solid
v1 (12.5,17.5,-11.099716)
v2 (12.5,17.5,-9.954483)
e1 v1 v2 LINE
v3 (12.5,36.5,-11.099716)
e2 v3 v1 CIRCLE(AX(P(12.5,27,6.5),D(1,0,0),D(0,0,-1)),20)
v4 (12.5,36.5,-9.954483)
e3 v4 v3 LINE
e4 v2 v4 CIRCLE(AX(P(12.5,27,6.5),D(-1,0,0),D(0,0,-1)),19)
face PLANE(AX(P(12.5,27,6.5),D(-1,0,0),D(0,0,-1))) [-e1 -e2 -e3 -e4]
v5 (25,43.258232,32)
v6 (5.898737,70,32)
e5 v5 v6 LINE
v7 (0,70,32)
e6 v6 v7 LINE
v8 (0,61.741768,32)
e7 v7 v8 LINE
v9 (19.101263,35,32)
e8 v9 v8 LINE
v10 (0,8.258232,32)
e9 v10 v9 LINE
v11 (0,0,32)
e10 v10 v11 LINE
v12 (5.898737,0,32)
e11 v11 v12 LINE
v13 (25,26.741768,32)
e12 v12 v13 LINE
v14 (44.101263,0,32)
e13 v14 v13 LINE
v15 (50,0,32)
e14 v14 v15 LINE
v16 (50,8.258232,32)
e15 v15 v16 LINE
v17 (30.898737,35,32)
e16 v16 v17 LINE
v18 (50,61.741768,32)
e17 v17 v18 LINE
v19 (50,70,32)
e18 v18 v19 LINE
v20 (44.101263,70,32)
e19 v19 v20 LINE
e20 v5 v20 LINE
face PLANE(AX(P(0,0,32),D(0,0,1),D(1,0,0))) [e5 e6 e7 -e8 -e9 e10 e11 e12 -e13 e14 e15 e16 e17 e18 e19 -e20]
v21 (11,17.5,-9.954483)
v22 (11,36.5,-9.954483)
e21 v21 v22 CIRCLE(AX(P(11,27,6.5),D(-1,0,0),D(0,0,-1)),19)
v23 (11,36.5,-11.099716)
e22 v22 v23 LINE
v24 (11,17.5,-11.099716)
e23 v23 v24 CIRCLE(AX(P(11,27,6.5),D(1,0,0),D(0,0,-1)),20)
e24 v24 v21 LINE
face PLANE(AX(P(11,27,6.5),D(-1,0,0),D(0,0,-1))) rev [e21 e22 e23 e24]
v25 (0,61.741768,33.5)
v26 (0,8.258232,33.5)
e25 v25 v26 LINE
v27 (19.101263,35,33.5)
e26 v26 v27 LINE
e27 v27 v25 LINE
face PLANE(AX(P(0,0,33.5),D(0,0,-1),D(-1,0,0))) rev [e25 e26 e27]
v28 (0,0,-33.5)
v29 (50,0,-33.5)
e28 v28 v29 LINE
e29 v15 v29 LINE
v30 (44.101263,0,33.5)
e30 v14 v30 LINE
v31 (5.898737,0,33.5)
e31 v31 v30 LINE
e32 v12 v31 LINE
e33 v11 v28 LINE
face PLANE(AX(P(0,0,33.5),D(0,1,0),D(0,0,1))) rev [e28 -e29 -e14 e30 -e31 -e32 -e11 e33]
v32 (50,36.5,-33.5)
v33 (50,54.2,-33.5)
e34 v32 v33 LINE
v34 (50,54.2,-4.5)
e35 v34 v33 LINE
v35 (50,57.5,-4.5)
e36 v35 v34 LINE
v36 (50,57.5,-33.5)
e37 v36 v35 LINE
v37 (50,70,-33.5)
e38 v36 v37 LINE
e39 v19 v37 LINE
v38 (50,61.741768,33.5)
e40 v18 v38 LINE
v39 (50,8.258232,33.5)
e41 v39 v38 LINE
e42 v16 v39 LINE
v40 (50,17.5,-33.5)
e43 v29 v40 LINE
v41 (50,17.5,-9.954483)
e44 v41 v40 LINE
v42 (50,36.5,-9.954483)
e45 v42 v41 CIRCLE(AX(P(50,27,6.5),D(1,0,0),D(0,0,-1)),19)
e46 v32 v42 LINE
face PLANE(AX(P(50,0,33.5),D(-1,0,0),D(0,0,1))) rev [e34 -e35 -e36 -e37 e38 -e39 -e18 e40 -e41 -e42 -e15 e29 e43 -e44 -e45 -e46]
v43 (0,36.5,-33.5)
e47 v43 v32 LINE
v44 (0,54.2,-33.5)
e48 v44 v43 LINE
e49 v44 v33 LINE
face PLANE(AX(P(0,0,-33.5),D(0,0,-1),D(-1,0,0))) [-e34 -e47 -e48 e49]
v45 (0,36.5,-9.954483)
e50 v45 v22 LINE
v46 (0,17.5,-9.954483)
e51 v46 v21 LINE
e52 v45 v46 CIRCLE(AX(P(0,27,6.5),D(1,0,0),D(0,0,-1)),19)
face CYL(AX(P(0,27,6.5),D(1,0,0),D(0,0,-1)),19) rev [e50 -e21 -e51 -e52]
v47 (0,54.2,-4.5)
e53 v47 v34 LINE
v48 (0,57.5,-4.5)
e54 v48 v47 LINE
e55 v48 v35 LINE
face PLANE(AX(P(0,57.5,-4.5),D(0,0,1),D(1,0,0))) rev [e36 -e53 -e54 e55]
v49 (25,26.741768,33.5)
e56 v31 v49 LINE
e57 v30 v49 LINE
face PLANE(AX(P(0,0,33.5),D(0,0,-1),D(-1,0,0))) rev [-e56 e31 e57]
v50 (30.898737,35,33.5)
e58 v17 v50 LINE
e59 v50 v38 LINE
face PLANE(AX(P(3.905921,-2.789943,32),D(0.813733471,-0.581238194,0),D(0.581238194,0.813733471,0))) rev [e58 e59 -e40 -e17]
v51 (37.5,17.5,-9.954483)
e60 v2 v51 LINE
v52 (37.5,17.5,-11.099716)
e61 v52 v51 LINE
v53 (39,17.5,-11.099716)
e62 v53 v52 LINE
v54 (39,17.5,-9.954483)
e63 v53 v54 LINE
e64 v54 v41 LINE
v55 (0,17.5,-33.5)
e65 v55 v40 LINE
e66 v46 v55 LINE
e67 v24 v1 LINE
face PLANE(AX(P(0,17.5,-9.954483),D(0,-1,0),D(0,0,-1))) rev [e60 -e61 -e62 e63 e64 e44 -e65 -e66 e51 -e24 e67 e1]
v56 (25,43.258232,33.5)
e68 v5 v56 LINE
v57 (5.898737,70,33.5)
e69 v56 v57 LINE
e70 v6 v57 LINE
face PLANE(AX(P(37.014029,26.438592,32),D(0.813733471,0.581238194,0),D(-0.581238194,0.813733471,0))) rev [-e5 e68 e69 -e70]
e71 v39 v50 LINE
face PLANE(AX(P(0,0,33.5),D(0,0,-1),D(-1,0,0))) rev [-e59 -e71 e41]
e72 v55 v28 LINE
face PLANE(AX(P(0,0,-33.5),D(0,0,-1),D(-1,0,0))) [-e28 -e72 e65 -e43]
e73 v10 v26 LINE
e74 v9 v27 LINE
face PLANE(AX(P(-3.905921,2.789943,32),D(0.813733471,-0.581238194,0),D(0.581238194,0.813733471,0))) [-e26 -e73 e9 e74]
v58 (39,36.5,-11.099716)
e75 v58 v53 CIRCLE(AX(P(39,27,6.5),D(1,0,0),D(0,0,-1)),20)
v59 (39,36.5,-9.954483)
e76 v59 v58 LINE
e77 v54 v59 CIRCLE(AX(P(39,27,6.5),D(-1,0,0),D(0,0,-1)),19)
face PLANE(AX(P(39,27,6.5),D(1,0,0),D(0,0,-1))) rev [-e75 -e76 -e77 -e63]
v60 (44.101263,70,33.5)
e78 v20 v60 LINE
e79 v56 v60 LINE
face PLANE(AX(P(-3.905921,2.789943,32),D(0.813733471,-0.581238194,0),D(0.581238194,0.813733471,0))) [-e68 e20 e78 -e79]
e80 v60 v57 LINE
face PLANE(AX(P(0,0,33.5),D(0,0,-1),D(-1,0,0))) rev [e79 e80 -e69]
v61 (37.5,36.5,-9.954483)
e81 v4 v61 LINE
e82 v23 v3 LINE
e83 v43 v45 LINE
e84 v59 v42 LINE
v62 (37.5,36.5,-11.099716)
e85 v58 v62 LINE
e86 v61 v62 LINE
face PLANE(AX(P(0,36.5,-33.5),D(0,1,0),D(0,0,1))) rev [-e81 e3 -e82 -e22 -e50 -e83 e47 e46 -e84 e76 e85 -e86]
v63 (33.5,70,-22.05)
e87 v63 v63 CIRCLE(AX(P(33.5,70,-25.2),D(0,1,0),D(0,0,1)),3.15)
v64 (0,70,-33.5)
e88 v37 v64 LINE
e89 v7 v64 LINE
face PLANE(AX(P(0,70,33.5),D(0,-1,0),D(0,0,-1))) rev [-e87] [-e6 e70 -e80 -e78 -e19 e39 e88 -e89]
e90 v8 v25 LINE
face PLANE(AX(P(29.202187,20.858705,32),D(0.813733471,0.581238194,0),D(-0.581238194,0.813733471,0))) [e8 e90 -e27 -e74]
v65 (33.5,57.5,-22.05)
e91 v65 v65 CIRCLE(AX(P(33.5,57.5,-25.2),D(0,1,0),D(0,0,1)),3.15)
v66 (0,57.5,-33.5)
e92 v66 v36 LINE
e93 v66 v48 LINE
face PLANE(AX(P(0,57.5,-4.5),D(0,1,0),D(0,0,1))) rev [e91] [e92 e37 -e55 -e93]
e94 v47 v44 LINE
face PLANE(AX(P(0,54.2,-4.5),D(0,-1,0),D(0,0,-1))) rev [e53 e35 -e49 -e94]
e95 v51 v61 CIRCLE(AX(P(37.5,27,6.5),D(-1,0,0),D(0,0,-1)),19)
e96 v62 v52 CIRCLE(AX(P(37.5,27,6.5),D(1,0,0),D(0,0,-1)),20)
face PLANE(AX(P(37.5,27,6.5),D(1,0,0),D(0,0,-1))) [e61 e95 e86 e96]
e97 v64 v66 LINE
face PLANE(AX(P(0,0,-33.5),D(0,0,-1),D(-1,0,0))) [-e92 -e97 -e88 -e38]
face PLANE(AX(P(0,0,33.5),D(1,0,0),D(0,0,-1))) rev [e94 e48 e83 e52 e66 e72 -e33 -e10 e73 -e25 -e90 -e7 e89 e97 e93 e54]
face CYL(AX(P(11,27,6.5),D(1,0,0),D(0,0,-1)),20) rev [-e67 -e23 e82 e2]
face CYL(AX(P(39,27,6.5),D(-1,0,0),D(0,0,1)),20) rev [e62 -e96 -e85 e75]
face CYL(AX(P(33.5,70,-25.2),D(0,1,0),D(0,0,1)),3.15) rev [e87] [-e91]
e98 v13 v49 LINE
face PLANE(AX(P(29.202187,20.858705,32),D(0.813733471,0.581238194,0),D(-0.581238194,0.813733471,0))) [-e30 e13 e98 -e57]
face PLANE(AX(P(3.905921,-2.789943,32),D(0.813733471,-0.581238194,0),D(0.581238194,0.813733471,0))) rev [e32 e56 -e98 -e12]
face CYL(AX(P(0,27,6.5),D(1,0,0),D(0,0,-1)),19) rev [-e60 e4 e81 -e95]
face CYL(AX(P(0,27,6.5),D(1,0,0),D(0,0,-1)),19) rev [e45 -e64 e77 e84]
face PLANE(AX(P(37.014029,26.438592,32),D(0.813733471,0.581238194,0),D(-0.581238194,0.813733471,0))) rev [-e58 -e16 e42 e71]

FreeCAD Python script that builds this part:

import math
import FreeCAD as App
import Part
import Sketcher
from FreeCAD import Vector
Q = App.Units.Quantity

doc = App.newDocument("Part")
body = doc.addObject("PartDesign::Body", "Body")

# Sketch on XY plane
sketch1 = body.newObject("Sketcher::SketchObject", "Sketch")
sketch1.AttachmentSupport = (doc.getObject("XY_Plane"), [""])
sketch1.MapMode = "FlatFace"
sketch1.addGeometry([
    Part.LineSegment(Vector(0, 70, 0), Vector(0, 0, 0)),
    Part.LineSegment(Vector(0, 0, 0), Vector(50, 0, 0)),
    Part.LineSegment(Vector(50, 0, 0), Vector(50, 70, 0)),
    Part.LineSegment(Vector(50, 70, 0), Vector(0, 70, 0)),
], False)
sketch1.addConstraint([
    Sketcher.Constraint("Coincident", 0, 2, 1, 1),
    Sketcher.Constraint("Coincident", 1, 2, 2, 1),
    Sketcher.Constraint("Coincident", 2, 2, 3, 1),
    Sketcher.Constraint("Coincident", 3, 2, 0, 1),
    Sketcher.Constraint("Vertical", 0),
    Sketcher.Constraint("Horizontal", 1),
    Sketcher.Constraint("Vertical", 2),
    Sketcher.Constraint("Horizontal", 3),
    Sketcher.Constraint("Coincident", 0, 2, -1, 1),
    Sketcher.Constraint("DistanceX", 1, 1, 1, 2, Q("50 mm")),
    Sketcher.Constraint("DistanceY", 0, 2, 0, 1, Q("70 mm")),
])
pad1 = body.newObject("PartDesign::Pad", "Pad")
pad1.Profile = sketch1
pad1.Length = 67
pad1.Midplane = True

# Sketch on XY plane
sketch2 = body.newObject("Sketcher::SketchObject", "Sketch001")
sketch2.AttachmentSupport = (doc.getObject("XY_Plane"), [""])
sketch2.MapMode = "FlatFace"
sketch2.AttachmentOffset = App.Placement(Vector(0, 0, 33.5), App.Rotation())
sketch2.addGeometry([
    Part.LineSegment(Vector(25, 43, 0), Vector(6, 70, 0)),  # 0
    Part.LineSegment(Vector(6, 70, 0), Vector(0, 70, 0)),  # 1
    Part.LineSegment(Vector(0, 70, 0), Vector(0, 62, 0)),  # 2
    Part.LineSegment(Vector(0, 62, 0), Vector(19, 35, 0)),  # 3
    Part.LineSegment(Vector(19, 35, 0), Vector(0, 8, 0)),  # 4
    Part.LineSegment(Vector(0, 8, 0), Vector(0, 0, 0)),  # 5
    Part.LineSegment(Vector(0, 0, 0), Vector(6, 0, 0)),  # 6
    Part.LineSegment(Vector(6, 0, 0), Vector(25, 27, 0)),  # 7
    Part.LineSegment(Vector(25, 27, 0), Vector(44, 0, 0)),  # 8
    Part.LineSegment(Vector(44, 0, 0), Vector(50, 0, 0)),  # 9
    Part.LineSegment(Vector(50, 0, 0), Vector(50, 8, 0)),  # 10
    Part.LineSegment(Vector(50, 8, 0), Vector(31, 35, 0)),  # 11
    Part.LineSegment(Vector(31, 35, 0), Vector(50, 62, 0)),  # 12
    Part.LineSegment(Vector(50, 62, 0), Vector(50, 70, 0)),  # 13
    Part.LineSegment(Vector(50, 70, 0), Vector(44, 70, 0)),  # 14
    Part.LineSegment(Vector(44, 70, 0), Vector(25, 43, 0)),  # 15
], False)
sketch2.addConstraint([
    Sketcher.Constraint("Coincident", 0, 2, 1, 1),
    Sketcher.Constraint("Coincident", 1, 2, 2, 1),
    Sketcher.Constraint("Coincident", 2, 2, 3, 1),
    Sketcher.Constraint("Coincident", 3, 2, 4, 1),
    Sketcher.Constraint("Coincident", 4, 2, 5, 1),
    Sketcher.Constraint("Coincident", 5, 2, 6, 1),
    Sketcher.Constraint("Coincident", 6, 2, 7, 1),
    Sketcher.Constraint("Coincident", 7, 2, 8, 1),
    Sketcher.Constraint("Coincident", 8, 2, 9, 1),
    Sketcher.Constraint("Coincident", 9, 2, 10, 1),
    Sketcher.Constraint("Coincident", 10, 2, 11, 1),
    Sketcher.Constraint("Coincident", 11, 2, 12, 1),
    Sketcher.Constraint("Coincident", 12, 2, 13, 1),
    Sketcher.Constraint("Coincident", 13, 2, 14, 1),
    Sketcher.Constraint("Coincident", 14, 2, 15, 1),
    Sketcher.Constraint("Coincident", 15, 2, 0, 1),
    Sketcher.Constraint("Horizontal", 1),
    Sketcher.Constraint("Vertical", 2),
    Sketcher.Constraint("Vertical", 5),
    Sketcher.Constraint("Horizontal", 6),
    Sketcher.Constraint("Horizontal", 9),
    Sketcher.Constraint("Vertical", 10),
    Sketcher.Constraint("Vertical", 13),
    Sketcher.Constraint("Horizontal", 14),
    Sketcher.Constraint("Coincident", 5, 2, -1, 1),
    Sketcher.Constraint("PointOnObject", 1, 2, -2),
    Sketcher.Constraint("PointOnObject", 8, 2, -1),
    Sketcher.Constraint("Parallel", 0, 3),
    Sketcher.Constraint("Parallel", 4, 7),
    Sketcher.Constraint("Parallel", 3, 8),
    Sketcher.Constraint("Parallel", 8, 11),
    Sketcher.Constraint("Parallel", 7, 12),
    Sketcher.Constraint("Parallel", 12, 15),
    Sketcher.Constraint("Horizontal", 4, 2, 10, 2),
    Sketcher.Constraint("Horizontal", 3, 2, 11, 2),
    Sketcher.Constraint("Horizontal", 2, 2, 12, 2),
    Sketcher.Constraint("Horizontal", 1, 2, 13, 2),
    Sketcher.Constraint("Vertical", 0, 2, 6, 2),
    Sketcher.Constraint("Vertical", 10, 2, 12, 2),
    Sketcher.Constraint("Vertical", 8, 2, 14, 2),
    Sketcher.Constraint("Equal", 6, 9),
    Sketcher.Constraint("Equal", 2, 5),
    Sketcher.Constraint("Equal", 0, 3),
    Sketcher.Constraint("DistanceY", -1, 1, 0, 2, Q("70 mm")),
    Sketcher.Constraint("DistanceX", -1, 1, 7, 2, Q("25 mm")),
    Sketcher.Constraint("DistanceX", 1, 2, 1, 1, Q("5.898737 mm")),
    Sketcher.Constraint("DistanceY", 2, 2, 2, 1, Q("8.258232 mm")),
])
pocket1 = body.newObject("PartDesign::Pocket", "Pocket")
pocket1.Profile = sketch2
pocket1.Length = 1.5

# Sketch on YZ plane
sketch3 = body.newObject("Sketcher::SketchObject", "Sketch002")
sketch3.AttachmentSupport = (doc.getObject("YZ_Plane"), [""])
sketch3.MapMode = "FlatFace"
sketch3.AttachmentOffset = App.Placement(Vector(0, 0, 50), App.Rotation())
sketch3.addGeometry([
    Part.LineSegment(Vector(57.5, -4.5, 0), Vector(54.2, -4.5, 0)),
    Part.LineSegment(Vector(54.2, -4.5, 0), Vector(54.2, -33.5, 0)),
    Part.LineSegment(Vector(54.2, -33.5, 0), Vector(57.5, -33.5, 0)),
    Part.LineSegment(Vector(57.5, -33.5, 0), Vector(57.5, -4.5, 0)),
], False)
sketch3.addConstraint([
    Sketcher.Constraint("Coincident", 0, 2, 1, 1),
    Sketcher.Constraint("Coincident", 1, 2, 2, 1),
    Sketcher.Constraint("Coincident", 2, 2, 3, 1),
    Sketcher.Constraint("Coincident", 3, 2, 0, 1),
    Sketcher.Constraint("Horizontal", 0),
    Sketcher.Constraint("Vertical", 1),
    Sketcher.Constraint("Horizontal", 2),
    Sketcher.Constraint("Vertical", 3),
    Sketcher.Constraint("DistanceY", 1, 2, 1, 1, Q("29 mm")),
    Sketcher.Constraint("DistanceX", 0, 2, 0, 1, Q("3.3 mm")),
    Sketcher.Constraint("DistanceX", -1, 1, 0, 2, Q("54.2 mm")),
    Sketcher.Constraint("DistanceY", 0, 2, -1, 1, Q("4.5 mm")),
])
pocket2 = body.newObject("PartDesign::Pocket", "Pocket001")
pocket2.Profile = sketch3
pocket2.Type = "ThroughAll"

# Sketch on YZ plane
sketch4 = body.newObject("Sketcher::SketchObject", "Sketch003")
sketch4.AttachmentSupport = (doc.getObject("YZ_Plane"), [""])
sketch4.MapMode = "FlatFace"
sketch4.AttachmentOffset = App.Placement(Vector(0, 0, 50), App.Rotation())
sketch4.addGeometry([
    Part.LineSegment(Vector(36, -34, 0), Vector(36, -10, 0)),
    Part.ArcOfCircle(Part.Circle(Vector(27, 6, 0), Vector(0, 0, 1), 19), math.radians(-60), math.radians(240)),
    Part.LineSegment(Vector(18, -10, 0), Vector(18, -34, 0)),
    Part.LineSegment(Vector(18, -34, 0), Vector(36, -34, 0)),
], False)
sketch4.addConstraint([
    Sketcher.Constraint("Coincident", 0, 2, 1, 1),
    Sketcher.Constraint("Coincident", 1, 2, 2, 1),
    Sketcher.Constraint("Coincident", 2, 2, 3, 1),
    Sketcher.Constraint("Coincident", 3, 2, 0, 1),
    Sketcher.Constraint("Vertical", 0),
    Sketcher.Constraint("Vertical", 2),
    Sketcher.Constraint("Horizontal", 3),
    Sketcher.Constraint("Horizontal", 0, 2, 1, 2),
    Sketcher.Constraint("Radius", 1, Q("19 mm")),
    Sketcher.Constraint("DistanceX", 3, 1, 3, 2, Q("19 mm")),
    Sketcher.Constraint("DistanceX", -1, 1, 1, 3, Q("27 mm")),
    Sketcher.Constraint("DistanceY", 2, 2, 1, 3, Q("40 mm")),
    Sketcher.Constraint("DistanceY", -1, 1, 1, 3, Q("6.5 mm")),
])
pocket3 = body.newObject("PartDesign::Pocket", "Pocket002")
pocket3.Profile = sketch4
pocket3.Type = "ThroughAll"

# Sketch on XZ plane
sketch5 = body.newObject("Sketcher::SketchObject", "Sketch004")
sketch5.AttachmentSupport = (doc.getObject("XZ_Plane"), [""])
sketch5.MapMode = "FlatFace"
sketch5.AttachmentOffset = App.Placement(Vector(0, 0, -70), App.Rotation())
sketch5.addGeometry(Part.Circle(Vector(33.5, -25.2, 0), Vector(0, 0, 1), 3.1), False)
sketch5.addConstraint([
    Sketcher.Constraint("Diameter", 0, Q("6.3 mm")),
    Sketcher.Constraint("DistanceX", -1, 1, 0, 3, Q("33.5 mm")),
    Sketcher.Constraint("DistanceY", 0, 3, -1, 1, Q("25.2 mm")),
])
doc.recompute()
hole = body.newObject("PartDesign::Hole", "Hole")
hole.Profile = sketch5
hole.ThreadType = "None"
hole.Diameter = 6.3
hole.DepthType = "Dimension"
hole.Depth = 12.5
hole.DrillPoint = "Flat"
hole.Reversed = True

# Sketch on YZ plane
sketch6 = body.newObject("Sketcher::SketchObject", "Sketch005")
sketch6.AttachmentSupport = (doc.getObject("YZ_Plane"), [""])
sketch6.MapMode = "FlatFace"
sketch6.AttachmentOffset = App.Placement(Vector(0, 0, 37.5), App.Rotation())
sketch6.addGeometry([
    Part.LineSegment(Vector(36.5, -10, 0), Vector(36.5, -11.1, 0)),
    Part.ArcOfCircle(Part.Circle(Vector(27, 6.5, 0), Vector(0, 0, 1), 20), math.radians(-62), math.radians(242)),
    Part.LineSegment(Vector(17.5, -11.1, 0), Vector(17.5, -10, 0)),
    Part.ArcOfCircle(Part.Circle(Vector(27, 6.5, 0), Vector(0, 0, 1), 19), math.radians(-60), math.radians(240)),
], False)
sketch6.addConstraint([
    Sketcher.Constraint("Coincident", 0, 2, 1, 1),
    Sketcher.Constraint("Coincident", 1, 2, 2, 1),
    Sketcher.Constraint("Coincident", 2, 2, 3, 2),
    Sketcher.Constraint("Coincident", 3, 1, 0, 1),
    Sketcher.Constraint("Vertical", 0),
    Sketcher.Constraint("Vertical", 2),
    Sketcher.Constraint("Coincident", 3, 3, 1, 3),
    Sketcher.Constraint("Horizontal", 0, 2, 1, 2),
    Sketcher.Constraint("Radius", 1, Q("20 mm")),
    Sketcher.Constraint("Radius", 3, Q("19 mm")),
    Sketcher.Constraint("DistanceX", -1, 1, 1, 3, Q("27 mm")),
    Sketcher.Constraint("DistanceX", 1, 2, 0, 2, Q("19 mm")),
    Sketcher.Constraint("DistanceY", -1, 1, 1, 3, Q("6.5 mm")),
])
pocket4 = body.newObject("PartDesign::Pocket", "Pocket003")
pocket4.Profile = sketch6
pocket4.Length = 1.5
pocket4.Reversed = True
doc.recompute()

datumplane = body.newObject("PartDesign::Plane", "DatumPlane")
datumplane.AttachmentSupport = (doc.getObject("YZ_Plane"), [""])
datumplane.MapMode = "FlatFace"
datumplane.AttachmentOffset = App.Placement(Vector(0, 0, 25), App.Rotation())
mirrored = body.newObject("PartDesign::Mirrored", "Mirrored")
mirrored.Originals = [pocket4]
mirrored.MirrorPlane = (datumplane, [""])
body.Tip = mirrored

doc.recompute()
